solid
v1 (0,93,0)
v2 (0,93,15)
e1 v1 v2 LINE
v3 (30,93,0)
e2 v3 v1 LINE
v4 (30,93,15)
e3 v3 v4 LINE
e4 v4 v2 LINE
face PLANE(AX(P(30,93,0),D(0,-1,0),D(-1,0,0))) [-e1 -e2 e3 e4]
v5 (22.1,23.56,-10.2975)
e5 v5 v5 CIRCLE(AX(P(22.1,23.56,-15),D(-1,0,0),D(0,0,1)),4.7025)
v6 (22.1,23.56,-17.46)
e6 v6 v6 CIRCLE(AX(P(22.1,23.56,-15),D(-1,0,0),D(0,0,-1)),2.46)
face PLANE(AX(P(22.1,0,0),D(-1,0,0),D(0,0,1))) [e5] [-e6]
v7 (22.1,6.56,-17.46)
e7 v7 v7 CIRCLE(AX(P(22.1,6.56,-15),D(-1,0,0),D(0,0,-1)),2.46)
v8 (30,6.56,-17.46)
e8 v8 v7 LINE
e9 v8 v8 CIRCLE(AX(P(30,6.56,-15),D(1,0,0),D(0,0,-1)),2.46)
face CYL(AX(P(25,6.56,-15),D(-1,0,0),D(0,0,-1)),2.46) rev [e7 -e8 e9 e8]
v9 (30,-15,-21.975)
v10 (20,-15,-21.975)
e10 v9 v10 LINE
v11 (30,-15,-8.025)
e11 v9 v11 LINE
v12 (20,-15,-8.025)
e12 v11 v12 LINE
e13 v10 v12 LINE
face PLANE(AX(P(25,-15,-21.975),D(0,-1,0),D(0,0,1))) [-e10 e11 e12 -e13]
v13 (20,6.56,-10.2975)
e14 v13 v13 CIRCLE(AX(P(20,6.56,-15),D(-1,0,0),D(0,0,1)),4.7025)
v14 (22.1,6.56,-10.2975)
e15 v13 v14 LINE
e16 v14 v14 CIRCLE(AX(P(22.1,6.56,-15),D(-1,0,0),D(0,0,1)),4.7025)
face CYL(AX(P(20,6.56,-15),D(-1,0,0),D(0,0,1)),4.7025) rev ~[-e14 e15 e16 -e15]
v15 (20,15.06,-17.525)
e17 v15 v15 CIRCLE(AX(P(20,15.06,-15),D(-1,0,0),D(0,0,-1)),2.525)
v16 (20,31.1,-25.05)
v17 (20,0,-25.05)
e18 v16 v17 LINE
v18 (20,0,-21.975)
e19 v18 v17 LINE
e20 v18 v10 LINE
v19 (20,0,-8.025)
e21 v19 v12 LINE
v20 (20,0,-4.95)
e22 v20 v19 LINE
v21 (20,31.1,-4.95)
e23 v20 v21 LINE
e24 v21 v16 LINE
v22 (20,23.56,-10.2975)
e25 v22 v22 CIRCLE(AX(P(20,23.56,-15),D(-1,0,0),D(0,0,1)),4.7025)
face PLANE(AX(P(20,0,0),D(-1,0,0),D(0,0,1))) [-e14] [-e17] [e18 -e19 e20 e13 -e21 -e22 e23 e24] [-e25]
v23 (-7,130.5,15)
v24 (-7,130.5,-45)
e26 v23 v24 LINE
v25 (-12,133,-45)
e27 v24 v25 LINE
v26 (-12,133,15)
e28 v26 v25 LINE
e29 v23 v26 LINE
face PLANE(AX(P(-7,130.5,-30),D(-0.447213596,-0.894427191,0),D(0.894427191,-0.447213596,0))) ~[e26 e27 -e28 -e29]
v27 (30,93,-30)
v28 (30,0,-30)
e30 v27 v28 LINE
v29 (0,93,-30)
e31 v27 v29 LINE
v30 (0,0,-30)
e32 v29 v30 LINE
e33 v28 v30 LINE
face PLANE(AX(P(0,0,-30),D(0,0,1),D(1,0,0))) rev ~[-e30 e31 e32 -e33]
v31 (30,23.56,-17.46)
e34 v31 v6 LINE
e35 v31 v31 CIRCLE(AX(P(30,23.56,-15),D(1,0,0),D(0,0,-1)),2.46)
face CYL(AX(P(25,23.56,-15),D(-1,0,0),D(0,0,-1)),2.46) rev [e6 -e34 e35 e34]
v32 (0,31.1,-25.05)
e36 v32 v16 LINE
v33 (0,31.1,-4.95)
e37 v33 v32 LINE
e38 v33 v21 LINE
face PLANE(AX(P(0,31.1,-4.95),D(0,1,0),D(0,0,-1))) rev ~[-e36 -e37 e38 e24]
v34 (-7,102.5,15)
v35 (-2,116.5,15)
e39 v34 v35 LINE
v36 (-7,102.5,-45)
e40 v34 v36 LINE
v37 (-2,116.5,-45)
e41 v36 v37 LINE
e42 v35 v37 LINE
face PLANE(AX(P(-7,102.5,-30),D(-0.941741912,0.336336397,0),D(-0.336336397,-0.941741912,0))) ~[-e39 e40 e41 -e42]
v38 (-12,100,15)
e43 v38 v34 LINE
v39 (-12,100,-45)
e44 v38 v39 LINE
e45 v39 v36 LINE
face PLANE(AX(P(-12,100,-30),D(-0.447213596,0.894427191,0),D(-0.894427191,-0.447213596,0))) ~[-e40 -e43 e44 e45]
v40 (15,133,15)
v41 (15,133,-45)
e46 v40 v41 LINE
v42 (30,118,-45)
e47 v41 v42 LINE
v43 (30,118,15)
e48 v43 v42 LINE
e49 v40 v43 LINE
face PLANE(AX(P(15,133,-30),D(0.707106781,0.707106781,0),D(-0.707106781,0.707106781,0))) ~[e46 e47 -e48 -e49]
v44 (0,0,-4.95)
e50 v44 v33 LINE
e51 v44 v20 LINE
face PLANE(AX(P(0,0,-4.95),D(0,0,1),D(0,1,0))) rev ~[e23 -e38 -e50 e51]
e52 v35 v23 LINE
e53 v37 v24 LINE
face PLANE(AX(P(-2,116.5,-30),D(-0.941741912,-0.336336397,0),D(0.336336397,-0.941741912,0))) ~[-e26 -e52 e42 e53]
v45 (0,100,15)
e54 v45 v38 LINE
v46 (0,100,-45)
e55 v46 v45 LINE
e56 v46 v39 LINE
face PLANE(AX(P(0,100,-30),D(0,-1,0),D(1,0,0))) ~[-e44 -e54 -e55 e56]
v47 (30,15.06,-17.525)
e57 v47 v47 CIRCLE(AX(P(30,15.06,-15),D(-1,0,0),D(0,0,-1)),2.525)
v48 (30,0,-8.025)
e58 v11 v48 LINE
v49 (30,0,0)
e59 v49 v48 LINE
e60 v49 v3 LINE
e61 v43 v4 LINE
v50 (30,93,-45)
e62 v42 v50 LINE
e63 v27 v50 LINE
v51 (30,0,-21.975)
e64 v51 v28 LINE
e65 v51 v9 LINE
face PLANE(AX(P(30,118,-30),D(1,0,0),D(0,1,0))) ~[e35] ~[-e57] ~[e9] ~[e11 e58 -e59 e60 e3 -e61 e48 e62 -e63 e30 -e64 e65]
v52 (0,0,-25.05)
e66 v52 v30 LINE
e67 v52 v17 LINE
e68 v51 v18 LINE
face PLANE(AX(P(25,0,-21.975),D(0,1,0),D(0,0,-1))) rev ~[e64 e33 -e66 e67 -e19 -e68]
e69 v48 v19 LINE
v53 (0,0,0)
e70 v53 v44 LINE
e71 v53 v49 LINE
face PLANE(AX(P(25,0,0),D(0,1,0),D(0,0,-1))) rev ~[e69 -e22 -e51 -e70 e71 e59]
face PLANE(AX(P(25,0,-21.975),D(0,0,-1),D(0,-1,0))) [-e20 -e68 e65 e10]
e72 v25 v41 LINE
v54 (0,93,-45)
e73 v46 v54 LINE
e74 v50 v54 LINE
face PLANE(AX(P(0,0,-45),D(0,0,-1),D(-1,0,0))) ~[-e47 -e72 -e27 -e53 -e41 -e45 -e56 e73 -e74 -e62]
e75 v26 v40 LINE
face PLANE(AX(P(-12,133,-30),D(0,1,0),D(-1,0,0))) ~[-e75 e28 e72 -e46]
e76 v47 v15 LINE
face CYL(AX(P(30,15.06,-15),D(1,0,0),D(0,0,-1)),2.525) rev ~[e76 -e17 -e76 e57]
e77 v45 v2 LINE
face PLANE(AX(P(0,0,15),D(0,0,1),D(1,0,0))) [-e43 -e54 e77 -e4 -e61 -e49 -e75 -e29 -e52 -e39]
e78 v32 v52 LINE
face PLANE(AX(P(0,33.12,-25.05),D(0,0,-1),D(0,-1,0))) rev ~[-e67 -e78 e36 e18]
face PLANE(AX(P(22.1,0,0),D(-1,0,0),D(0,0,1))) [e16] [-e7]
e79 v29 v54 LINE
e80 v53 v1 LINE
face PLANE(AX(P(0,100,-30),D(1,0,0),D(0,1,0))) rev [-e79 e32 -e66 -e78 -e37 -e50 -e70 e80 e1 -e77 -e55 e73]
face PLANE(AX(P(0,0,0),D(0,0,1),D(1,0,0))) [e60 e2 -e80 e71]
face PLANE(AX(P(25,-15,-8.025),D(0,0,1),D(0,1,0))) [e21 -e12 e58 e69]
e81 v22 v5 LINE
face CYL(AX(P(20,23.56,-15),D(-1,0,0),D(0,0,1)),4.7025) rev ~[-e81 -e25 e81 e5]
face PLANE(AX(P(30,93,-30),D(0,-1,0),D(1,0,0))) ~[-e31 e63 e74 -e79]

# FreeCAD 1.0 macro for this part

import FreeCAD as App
import Part
import Sketcher
Q = App.Units.Quantity


def add_polygon(sketch, points):
    """Adds a closed chain of lines whose ends are joined by coincident constraints."""
    first, n = sketch.GeometryCount, len(points)
    for a, b in zip(points, points[1:] + points[:1]):
        sketch.addGeometry(Part.LineSegment(App.Vector(*a, 0), App.Vector(*b, 0)), False)
    for i in range(n):
        sketch.addConstraint(Sketcher.Constraint("Coincident", first + i, 2, first + (i + 1) % n, 1))

doc = App.newDocument("Part")
body = doc.addObject("PartDesign::Body", "Body")

# Sketch on XY plane
sketch1 = body.newObject("Sketcher::SketchObject", "Sketch")
sketch1.AttachmentSupport = (doc.getObject("XY_Plane"), [""])
sketch1.MapMode = "FlatFace"
add_polygon(sketch1, [(0, 40), (0, 0), (25, 0), (25, 40)])  # lines 0-3
sketch1.addConstraint(Sketcher.Constraint("Vertical", 0))
sketch1.addConstraint(Sketcher.Constraint("Horizontal", 1))
sketch1.addConstraint(Sketcher.Constraint("Vertical", 2))
sketch1.addConstraint(Sketcher.Constraint("Horizontal", 3))
sketch1.addConstraint(Sketcher.Constraint("Coincident", 0, 2, -1, 1))
sketch1.addConstraint(Sketcher.Constraint("DistanceX", 1, 1, 1, 2, 25.0))
sketch1.addConstraint(Sketcher.Constraint("DistanceY", 0, 2, 0, 1, 40.0))
pad1 = body.newObject("PartDesign::Pad", "Pad")
pad1.Profile = sketch1
pad1.Length = 30
pad1.Reversed = True

# Sketch on YZ plane
sketch2 = body.newObject("Sketcher::SketchObject", "Sketch001")
sketch2.AttachmentSupport = (doc.getObject("YZ_Plane"), [""])
sketch2.MapMode = "FlatFace"
sketch2.AttachmentOffset = App.Placement(App.Vector(0, 0, 25), App.Rotation())
sketch2.addGeometry(Part.Circle(App.Vector(6.56, -15, 0), App.Vector(0, 0, 1), 2.46), False)
sketch2.addConstraint(Sketcher.Constraint("Diameter", 0, 4.92))
sketch2.addConstraint(Sketcher.Constraint("DistanceY", 0, 3, -1, 1, 15.0))
sketch2.addConstraint(Sketcher.Constraint("DistanceX", -1, 1, 0, 3, 6.56))
pocket1 = body.newObject("PartDesign::Pocket", "Pocket")
pocket1.Profile = sketch2
pocket1.Length = 30

# Sketch on YZ plane
sketch3 = body.newObject("Sketcher::SketchObject", "Sketch002")
sketch3.AttachmentSupport = (doc.getObject("YZ_Plane"), [""])
sketch3.MapMode = "FlatFace"
add_polygon(sketch3, [(0, -25.05), (0, -4.95), (33.12, -4.95), (33.12, -25.05)])  # lines 0-3
sketch3.addConstraint(Sketcher.Constraint("Vertical", 0))
sketch3.addConstraint(Sketcher.Constraint("Horizontal", 1))
sketch3.addConstraint(Sketcher.Constraint("Vertical", 2))
sketch3.addConstraint(Sketcher.Constraint("Horizontal", 3))
sketch3.addConstraint(Sketcher.Constraint("PointOnObject", 0, 2, -2))
sketch3.addConstraint(Sketcher.Constraint("DistanceY", 0, 1, 0, 2, 20.1))
sketch3.addConstraint(Sketcher.Constraint("DistanceX", 1, 1, 1, 2, 33.12))
sketch3.addConstraint(Sketcher.Constraint("DistanceY", 0, 2, -1, 1, 4.95))
pocket2 = body.newObject("PartDesign::Pocket", "Pocket001")
pocket2.Profile = sketch3
pocket2.Length = 20
pocket2.Reversed = True

# Sketch on XZ plane
sketch4 = body.newObject("Sketcher::SketchObject", "Sketch003")
sketch4.AttachmentSupport = (doc.getObject("XZ_Plane"), [""])
sketch4.MapMode = "FlatFace"
add_polygon(sketch4, [(25, -8.025), (20, -8.025), (20, -21.975), (25, -21.975)])  # lines 0-3
sketch4.addConstraint(Sketcher.Constraint("Horizontal", 0))
sketch4.addConstraint(Sketcher.Constraint("Vertical", 1))
sketch4.addConstraint(Sketcher.Constraint("Horizontal", 2))
sketch4.addConstraint(Sketcher.Constraint("Vertical", 3))
sketch4.addConstraint(Sketcher.Constraint("DistanceY", 1, 2, 1, 1, 13.95))
sketch4.addConstraint(Sketcher.Constraint("DistanceX", 0, 2, 0, 1, 5.0))
sketch4.addConstraint(Sketcher.Constraint("DistanceX", -1, 1, 0, 2, 20.0))
sketch4.addConstraint(Sketcher.Constraint("DistanceY", 0, 2, -1, 1, 8.025))
pad2 = body.newObject("PartDesign::Pad", "Pad001")
pad2.Profile = sketch4
pad2.Length = 15

# Sketch on YZ plane
sketch5 = body.newObject("Sketcher::SketchObject", "Sketch004")
sketch5.AttachmentSupport = (doc.getObject("YZ_Plane"), [""])
sketch5.MapMode = "FlatFace"
sketch5.AttachmentOffset = App.Placement(App.Vector(0, 0, 20), App.Rotation())
sketch5.addGeometry(Part.Circle(App.Vector(6.56, -15, 0), App.Vector(0, 0, 1), 4.7025), False)
sketch5.addGeometry(Part.Circle(App.Vector(6.56, -15, 0), App.Vector(0, 0, 1), 2.46), False)
sketch5.addConstraint(Sketcher.Constraint("Coincident", 1, 3, 0, 3))
sketch5.addConstraint(Sketcher.Constraint("Diameter", 0, 9.405))
sketch5.addConstraint(Sketcher.Constraint("Diameter", 1, 4.92))
sketch5.addConstraint(Sketcher.Constraint("DistanceY", 0, 3, -1, 1, 15.0))
sketch5.addConstraint(Sketcher.Constraint("DistanceX", -1, 1, 0, 3, 6.56))
pocket3 = body.newObject("PartDesign::Pocket", "Pocket002")
pocket3.Profile = sketch5
pocket3.Length = 2.1
pocket3.Reversed = True

# Sketch on YZ plane
sketch6 = body.newObject("Sketcher::SketchObject", "Sketch005")
sketch6.AttachmentSupport = (doc.getObject("YZ_Plane"), [""])
sketch6.MapMode = "FlatFace"
sketch6.AttachmentOffset = App.Placement(App.Vector(0, 0, 25), App.Rotation())
sketch6.addGeometry(Part.Circle(App.Vector(23.56, -15, 0), App.Vector(0, 0, 1), 2.46), False)
sketch6.addConstraint(Sketcher.Constraint("Diameter", 0, 4.92))
sketch6.addConstraint(Sketcher.Constraint("DistanceY", 0, 3, -1, 1, 15.0))
sketch6.addConstraint(Sketcher.Constraint("DistanceX", -1, 1, 0, 3, 23.56))
pocket4 = body.newObject("PartDesign::Pocket", "Pocket003")
pocket4.Profile = sketch6
pocket4.Length = 10

# Sketch on YZ plane
sketch7 = body.newObject("Sketcher::SketchObject", "Sketch006")
sketch7.AttachmentSupport = (doc.getObject("YZ_Plane"), [""])
sketch7.MapMode = "FlatFace"
sketch7.AttachmentOffset = App.Placement(App.Vector(0, 0, 20), App.Rotation())
sketch7.addGeometry(Part.Circle(App.Vector(23.56, -15, 0), App.Vector(0, 0, 1), 4.7025), False)
sketch7.addGeometry(Part.Circle(App.Vector(23.56, -15, 0), App.Vector(0, 0, 1), 2.46), False)
sketch7.addConstraint(Sketcher.Constraint("Coincident", 1, 3, 0, 3))
sketch7.addConstraint(Sketcher.Constraint("Diameter", 0, 9.405))
sketch7.addConstraint(Sketcher.Constraint("Diameter", 1, 4.92))
sketch7.addConstraint(Sketcher.Constraint("DistanceY", 0, 3, -1, 1, 15.0))
sketch7.addConstraint(Sketcher.Constraint("DistanceX", -1, 1, 0, 3, 23.56))
pocket5 = body.newObject("PartDesign::Pocket", "Pocket004")
pocket5.Profile = sketch7
pocket5.Length = 2.1
pocket5.Reversed = True

# Sketch on YZ plane
sketch8 = body.newObject("Sketcher::SketchObject", "Sketch007")
sketch8.AttachmentSupport = (doc.getObject("YZ_Plane"), [""])
sketch8.MapMode = "FlatFace"
sketch8.AttachmentOffset = App.Placement(App.Vector(0, 0, 25), App.Rotation())
add_polygon(sketch8, [(0, -30), (40, -30), (40, 0), (0, 0), (0, -8.025), (-15, -8.025), (-15, -21.975), (0, -21.975)])  # lines 0-7
sketch8.addGeometry(Part.Circle(App.Vector(6.56, -15, 0), App.Vector(0, 0, 1), 2.46), False)  # 8
sketch8.addGeometry(Part.Circle(App.Vector(23.56, -15, 0), App.Vector(0, 0, 1), 2.46), False)  # 9
sketch8.addConstraint(Sketcher.Constraint("Horizontal", 0))
sketch8.addConstraint(Sketcher.Constraint("Vertical", 1))
sketch8.addConstraint(Sketcher.Constraint("Horizontal", 2))
sketch8.addConstraint(Sketcher.Constraint("Vertical", 3))
sketch8.addConstraint(Sketcher.Constraint("Horizontal", 4))
sketch8.addConstraint(Sketcher.Constraint("Vertical", 5))
sketch8.addConstraint(Sketcher.Constraint("Horizontal", 6))
sketch8.addConstraint(Sketcher.Constraint("Vertical", 7))
sketch8.addConstraint(Sketcher.Constraint("Coincident", 2, 2, -1, 1))
sketch8.addConstraint(Sketcher.Constraint("Equal", 8, 9))
sketch8.addConstraint(Sketcher.Constraint("PointOnObject", 6, 2, -2))
sketch8.addConstraint(Sketcher.Constraint("Horizontal", 8, 3, 9, 3))
sketch8.addConstraint(Sketcher.Constraint("Equal", 3, 7))
sketch8.addConstraint(Sketcher.Constraint("Diameter", 8, 4.92))
sketch8.addConstraint(Sketcher.Constraint("DistanceX", 0, 1, 0, 2, 40.0))
sketch8.addConstraint(Sketcher.Constraint("DistanceX", 4, 2, 4, 1, 15.0))
sketch8.addConstraint(Sketcher.Constraint("DistanceY", 1, 1, 1, 2, 30.0))
sketch8.addConstraint(Sketcher.Constraint("DistanceY", 8, 3, -1, 1, 15.0))
sketch8.addConstraint(Sketcher.Constraint("DistanceX", 8, 3, 9, 3, 17.0))
sketch8.addConstraint(Sketcher.Constraint("DistanceY", 5, 2, 5, 1, 13.95))
sketch8.addConstraint(Sketcher.Constraint("DistanceX", -1, 1, 8, 3, 6.56))
pad3 = body.newObject("PartDesign::Pad", "Pad002")
pad3.Profile = sketch8
pad3.Length = 5

# Sketch on XZ plane
sketch9 = body.newObject("Sketcher::SketchObject", "Sketch008")
sketch9.AttachmentSupport = (doc.getObject("XZ_Plane"), [""])
sketch9.MapMode = "FlatFace"
sketch9.AttachmentOffset = App.Placement(App.Vector(0, 0, -40), App.Rotation())
add_polygon(sketch9, [(30, -30), (0, -30), (0, 0), (30, 0)])  # lines 0-3
sketch9.addConstraint(Sketcher.Constraint("Horizontal", 0))
sketch9.addConstraint(Sketcher.Constraint("Vertical", 1))
sketch9.addConstraint(Sketcher.Constraint("Horizontal", 2))
sketch9.addConstraint(Sketcher.Constraint("Vertical", 3))
sketch9.addConstraint(Sketcher.Constraint("Coincident", 1, 2, -1, 1))
sketch9.addConstraint(Sketcher.Constraint("Equal", 2, 1))
sketch9.addConstraint(Sketcher.Constraint("DistanceX", 0, 2, 0, 1, 30.0))
pad4 = body.newObject("PartDesign::Pad", "Pad003")
pad4.Profile = sketch9
pad4.Length = 30
pad4.Reversed = True

# Sketch on YZ plane
sketch10 = body.newObject("Sketcher::SketchObject", "Sketch009")
sketch10.AttachmentSupport = (doc.getObject("YZ_Plane"), [""])
sketch10.MapMode = "FlatFace"
sketch10.AttachmentOffset = App.Placement(App.Vector(0, 0, 30), App.Rotation())
sketch10.addGeometry(Part.Circle(App.Vector(15.06, -15, 0), App.Vector(0, 0, 1), 2.525), False)
sketch10.addConstraint(Sketcher.Constraint("Diameter", 0, 5.05))
sketch10.addConstraint(Sketcher.Constraint("DistanceY", 0, 3, -1, 1, 15.0))
sketch10.addConstraint(Sketcher.Constraint("DistanceX", -1, 1, 0, 3, 15.06))
pocket6 = body.newObject("PartDesign::Pocket", "Pocket005")
pocket6.Profile = sketch10
pocket6.Length = 30

# Sketch on XY plane
sketch11 = body.newObject("Sketcher::SketchObject", "Sketch010")
sketch11.AttachmentSupport = (doc.getObject("XY_Plane"), [""])
sketch11.MapMode = "FlatFace"
add_polygon(sketch11, [(0, 70), (30, 70), (30, 118), (15, 133), (-12, 133), (-7, 130.5), (-2, 116.5), (-7, 102.5), (-12, 100), (0, 100)])  # lines 0-9
sketch11.addConstraint(Sketcher.Constraint("Horizontal", 0))
sketch11.addConstraint(Sketcher.Constraint("Vertical", 1))
sketch11.addConstraint(Sketcher.Constraint("Horizontal", 3))
sketch11.addConstraint(Sketcher.Constraint("Horizontal", 8))
sketch11.addConstraint(Sketcher.Constraint("Vertical", 9))
sketch11.addConstraint(Sketcher.Constraint("PointOnObject", 8, 2, -2))
sketch11.addConstraint(Sketcher.Constraint("Vertical", 4, 2, 6, 2))
sketch11.addConstraint(Sketcher.Constraint("Vertical", 3, 2, 7, 2))
sketch11.addConstraint(Sketcher.Constraint("Equal", 0, 9))
sketch11.addConstraint(Sketcher.Constraint("Equal", 5, 6))
sketch11.addConstraint(Sketcher.Constraint("Equal", 4, 7))
sketch11.addConstraint(Sketcher.Constraint("DistanceX", 8, 1, 8, 2, 12.0))
sketch11.addConstraint(Sketcher.Constraint("DistanceX", 0, 1, 0, 2, 30.0))
sketch11.addConstraint(Sketcher.Constraint("DistanceX", 3, 2, 3, 1, 27.0))
sketch11.addConstraint(Sketcher.Constraint("DistanceY", 1, 1, 1, 2, 48.0))
sketch11.addConstraint(Sketcher.Constraint("Angle", 2, Q("135 deg")))
sketch11.addConstraint(Sketcher.Constraint("DistanceY", -1, 1, 0, 2, 70.0))
sketch11.addConstraint(Sketcher.Constraint("DistanceX", 4, 2, -1, 1, 7.0))
sketch11.addConstraint(Sketcher.Constraint("DistanceX", 5, 2, -1, 1, 2.0))
sketch11.addConstraint(Sketcher.Constraint("DistanceY", 5, 2, 4, 2, 14.0))
pad5 = body.newObject("PartDesign::Pad", "Pad004")
pad5.Profile = sketch11
pad5.Length = 30
pad5.Reversed = True

# Sketch on YZ plane
sketch12 = body.newObject("Sketcher::SketchObject", "Sketch011")
sketch12.AttachmentSupport = (doc.getObject("YZ_Plane"), [""])
sketch12.MapMode = "FlatFace"
add_polygon(sketch12, [(33.12, -4.95), (33.12, -25.05), (31.1, -25.05), (31.1, -4.95)])  # lines 0-3
sketch12.addConstraint(Sketcher.Constraint("Vertical", 0))
sketch12.addConstraint(Sketcher.Constraint("Horizontal", 1))
sketch12.addConstraint(Sketcher.Constraint("Vertical", 2))
sketch12.addConstraint(Sketcher.Constraint("Horizontal", 3))
sketch12.addConstraint(Sketcher.Constraint("DistanceX", 1, 2, 1, 1, 2.02))
sketch12.addConstraint(Sketcher.Constraint("DistanceY", 0, 2, 0, 1, 20.1))
sketch12.addConstraint(Sketcher.Constraint("DistanceX", -1, 1, 1, 2, 31.1))
sketch12.addConstraint(Sketcher.Constraint("DistanceY", 0, 2, -1, 1, 25.05))
pad6 = body.newObject("PartDesign::Pad", "Pad005")
pad6.Profile = sketch12
pad6.Length = 20

# Sketch on XY plane
sketch13 = body.newObject("Sketcher::SketchObject", "Sketch012")
sketch13.AttachmentSupport = (doc.getObject("XY_Plane"), [""])
sketch13.MapMode = "FlatFace"
add_polygon(sketch13, [(-12, 100), (0, 100), (0, 93), (30, 93), (30, 118), (15, 133), (-12, 133), (-7, 130.5), (-2, 116.5), (-7, 102.5)])  # lines 0-9
sketch13.addConstraint(Sketcher.Constraint("Horizontal", 0))
sketch13.addConstraint(Sketcher.Constraint("Vertical", 1))
sketch13.addConstraint(Sketcher.Constraint("Horizontal", 2))
sketch13.addConstraint(Sketcher.Constraint("Vertical", 3))
sketch13.addConstraint(Sketcher.Constraint("Horizontal", 5))
sketch13.addConstraint(Sketcher.Constraint("PointOnObject", 0, 2, -2))
sketch13.addConstraint(Sketcher.Constraint("Vertical", 6, 2, 8, 2))
sketch13.addConstraint(Sketcher.Constraint("Vertical", 5, 2, 9, 2))
sketch13.addConstraint(Sketcher.Constraint("Equal", 7, 8))
sketch13.addConstraint(Sketcher.Constraint("Equal", 6, 9))
sketch13.addConstraint(Sketcher.Constraint("DistanceY", 3, 1, 3, 2, 25.0))
sketch13.addConstraint(Sketcher.Constraint("DistanceX", 0, 1, 0, 2, 12.0))
sketch13.addConstraint(Sketcher.Constraint("DistanceX", 2, 1, 2, 2, 30.0))
sketch13.addConstraint(Sketcher.Constraint("DistanceX", 5, 2, 5, 1, 27.0))
sketch13.addConstraint(Sketcher.Constraint("DistanceY", 1, 2, 1, 1, 7.0))
sketch13.addConstraint(Sketcher.Constraint("Angle", 4, Q("135 deg")))
sketch13.addConstraint(Sketcher.Constraint("DistanceY", -1, 1, 0, 2, 100.0))
sketch13.addConstraint(Sketcher.Constraint("DistanceX", 6, 2, -1, 1, 7.0))
sketch13.addConstraint(Sketcher.Constraint("DistanceX", 7, 2, -1, 1, 2.0))
sketch13.addConstraint(Sketcher.Constraint("DistanceY", 7, 2, 6, 2, 14.0))
pad7 = body.newObject("PartDesign::Pad", "Pad006")
pad7.Profile = sketch13
pad7.Length = 15
doc.recompute()

datumplane = body.newObject("PartDesign::Plane", "DatumPlane")
datumplane.AttachmentSupport = (doc.getObject("XY_Plane"), [""])
datumplane.MapMode = "FlatFace"
datumplane.AttachmentOffset = App.Placement(App.Vector(0, 0, -15), App.Rotation())
mirrored = body.newObject("PartDesign::Mirrored", "Mirrored")
mirrored.Originals = [pad7]
mirrored.MirrorPlane = (datumplane, [""])
body.Tip = mirrored

doc.recompute()
